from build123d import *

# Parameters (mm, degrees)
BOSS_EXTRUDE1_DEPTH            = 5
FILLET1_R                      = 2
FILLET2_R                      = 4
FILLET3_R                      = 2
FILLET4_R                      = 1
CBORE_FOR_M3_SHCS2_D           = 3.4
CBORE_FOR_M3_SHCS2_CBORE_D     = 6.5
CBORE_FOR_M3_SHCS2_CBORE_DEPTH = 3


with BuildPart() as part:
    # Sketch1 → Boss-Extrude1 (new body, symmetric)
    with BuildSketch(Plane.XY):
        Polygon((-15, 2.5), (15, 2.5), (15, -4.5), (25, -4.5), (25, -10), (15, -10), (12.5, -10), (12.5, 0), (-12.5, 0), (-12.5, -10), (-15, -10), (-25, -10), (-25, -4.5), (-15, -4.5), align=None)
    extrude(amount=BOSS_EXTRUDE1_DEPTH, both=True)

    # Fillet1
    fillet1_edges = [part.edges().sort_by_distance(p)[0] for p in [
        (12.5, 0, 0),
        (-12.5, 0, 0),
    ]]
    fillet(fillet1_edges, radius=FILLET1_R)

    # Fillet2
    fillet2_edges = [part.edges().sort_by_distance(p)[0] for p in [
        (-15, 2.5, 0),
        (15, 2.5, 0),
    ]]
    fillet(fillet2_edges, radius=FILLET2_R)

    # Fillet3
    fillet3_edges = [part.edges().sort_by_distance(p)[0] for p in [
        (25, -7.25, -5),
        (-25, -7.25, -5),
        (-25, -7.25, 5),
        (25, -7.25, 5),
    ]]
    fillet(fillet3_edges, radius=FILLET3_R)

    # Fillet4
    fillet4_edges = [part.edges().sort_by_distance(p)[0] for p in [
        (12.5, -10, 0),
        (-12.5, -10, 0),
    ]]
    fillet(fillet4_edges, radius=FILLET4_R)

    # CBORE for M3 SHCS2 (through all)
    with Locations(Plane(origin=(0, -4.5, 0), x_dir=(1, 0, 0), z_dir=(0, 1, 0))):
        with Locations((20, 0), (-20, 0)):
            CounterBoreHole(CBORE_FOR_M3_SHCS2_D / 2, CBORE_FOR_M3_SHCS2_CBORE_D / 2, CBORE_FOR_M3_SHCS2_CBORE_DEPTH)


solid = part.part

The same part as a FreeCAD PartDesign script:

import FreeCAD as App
import Part
import Sketcher

V = App.Vector


def edges_at(feature, points):
    """Names of the edges that pass closest to the given points."""
    edges = feature.Shape.Edges
    near = lambda p: min(range(len(edges)), key=lambda i: edges[i].distToShape(Part.Vertex(*p))[0])
    return sorted({f"Edge{near(p) + 1}" for p in points})

doc = App.newDocument("Part")
body = doc.addObject("PartDesign::Body", "Body")

# Sketch on XY plane
sketch1 = doc.addObject("Sketcher::SketchObject", "Sketch")
body.addObject(sketch1)
sketch1.AttachmentSupport = (doc.XY_Plane, [""])
sketch1.MapMode = "FlatFace"
sketch1.addGeometry(Part.LineSegment(V(15, 2, 0), V(-15, 2, 0)), False)
sketch1.addGeometry(Part.LineSegment(V(-15, 2, 0), V(-15, -4, 0)), False)
sketch1.addGeometry(Part.LineSegment(V(-15, -4, 0), V(-25, -4, 0)), False)
sketch1.addGeometry(Part.LineSegment(V(-25, -4, 0), V(-25, -10, 0)), False)
sketch1.addGeometry(Part.LineSegment(V(-25, -10, 0), V(-12, -10, 0)), False)
sketch1.addGeometry(Part.LineSegment(V(-12, -10, 0), V(-12, 0, 0)), False)
sketch1.addGeometry(Part.LineSegment(V(-12, 0, 0), V(12, 0, 0)), False)
sketch1.addGeometry(Part.LineSegment(V(12, 0, 0), V(12, -10, 0)), False)
sketch1.addGeometry(Part.LineSegment(V(12, -10, 0), V(25, -10, 0)), False)
sketch1.addGeometry(Part.LineSegment(V(25, -10, 0), V(25, -4, 0)), False)
sketch1.addGeometry(Part.LineSegment(V(25, -4, 0), V(15, -4, 0)), False)
sketch1.addGeometry(Part.LineSegment(V(15, -4, 0), V(15, 2, 0)), False)
sketch1.addConstraint(Sketcher.Constraint("Coincident", 0, 2, 1, 1))
sketch1.addConstraint(Sketcher.Constraint("Coincident", 1, 2, 2, 1))
sketch1.addConstraint(Sketcher.Constraint("Coincident", 2, 2, 3, 1))
sketch1.addConstraint(Sketcher.Constraint("Coincident", 3, 2, 4, 1))
sketch1.addConstraint(Sketcher.Constraint("Coincident", 4, 2, 5, 1))
sketch1.addConstraint(Sketcher.Constraint("Coincident", 5, 2, 6, 1))
sketch1.addConstraint(Sketcher.Constraint("Coincident", 6, 2, 7, 1))
sketch1.addConstraint(Sketcher.Constraint("Coincident", 7, 2, 8, 1))
sketch1.addConstraint(Sketcher.Constraint("Coincident", 8, 2, 9, 1))
sketch1.addConstraint(Sketcher.Constraint("Coincident", 9, 2, 10, 1))
sketch1.addConstraint(Sketcher.Constraint("Coincident", 10, 2, 11, 1))
sketch1.addConstraint(Sketcher.Constraint("Coincident", 11, 2, 0, 1))
sketch1.addConstraint(Sketcher.Constraint("Horizontal", 0))
sketch1.addConstraint(Sketcher.Constraint("Vertical", 1))
sketch1.addConstraint(Sketcher.Constraint("Horizontal", 2))
sketch1.addConstraint(Sketcher.Constraint("Vertical", 3))
sketch1.addConstraint(Sketcher.Constraint("Horizontal", 4))
sketch1.addConstraint(Sketcher.Constraint("Vertical", 5))
sketch1.addConstraint(Sketcher.Constraint("Horizontal", 6))
sketch1.addConstraint(Sketcher.Constraint("Vertical", 7))
sketch1.addConstraint(Sketcher.Constraint("Horizontal", 8))
sketch1.addConstraint(Sketcher.Constraint("Vertical", 9))
sketch1.addConstraint(Sketcher.Constraint("Horizontal", 10))
sketch1.addConstraint(Sketcher.Constraint("Vertical", 11))
sketch1.addConstraint(Sketcher.Constraint("Symmetric", 5, 2, 6, 2, -1, 1))
sketch1.addConstraint(Sketcher.Constraint("Symmetric", 3, 2, 8, 2, -2))
sketch1.addConstraint(Sketcher.Constraint("Symmetric", 1, 2, 10, 2, -2))
sketch1.addConstraint(Sketcher.Constraint("Equal", 10, 5))
sketch1.addConstraint(Sketcher.Constraint("DistanceX", 0, 2, 0, 1, 30.0))
sketch1.addConstraint(Sketcher.Constraint("DistanceX", 2, 2, 2, 1, 10.0))
sketch1.addConstraint(Sketcher.Constraint("DistanceX", 6, 1, 6, 2, 25.0))
sketch1.addConstraint(Sketcher.Constraint("DistanceY", 1, 2, 1, 1, 7.0))
sketch1.addConstraint(Sketcher.Constraint("DistanceY", 3, 2, 3, 1, 5.5))
pad1 = doc.addObject("PartDesign::Pad", "Pad")
body.addObject(pad1)
pad1.Profile = sketch1
pad1.Length = 10
pad1.Midplane = True
doc.recompute()

fillet = doc.addObject("PartDesign::Fillet", "Fillet")
body.addObject(fillet)
fillet.Base = (pad1, edges_at(pad1, [(12.5, 0, 0), (-12.5, 0, 0)]))
fillet.Radius = 2
doc.recompute()

fillet2 = doc.addObject("PartDesign::Fillet", "Fillet001")
body.addObject(fillet2)
fillet2.Base = (fillet, edges_at(fillet, [(-15, 2.5, 0), (15, 2.5, 0)]))
fillet2.Radius = 4
doc.recompute()

fillet3 = doc.addObject("PartDesign::Fillet", "Fillet002")
body.addObject(fillet3)
fillet3.Base = (fillet2, edges_at(fillet2, [
    (25, -7.25, -5),
    (-25, -7.25, -5),
    (-25, -7.25, 5),
    (25, -7.25, 5),
]))
fillet3.Radius = 2
doc.recompute()

fillet4 = doc.addObject("PartDesign::Fillet", "Fillet003")
body.addObject(fillet4)
fillet4.Base = (fillet3, edges_at(fillet3, [(12.5, -10, 0), (-12.5, -10, 0)]))
fillet4.Radius = 1

# Sketch on XZ plane
sketch2 = doc.addObject("Sketcher::SketchObject", "Sketch001")
body.addObject(sketch2)
sketch2.AttachmentSupport = (doc.XZ_Plane, [""])
sketch2.MapMode = "FlatFace"
sketch2.AttachmentOffset = App.Placement(V(0, 0, 4.5), App.Rotation())
sketch2.addGeometry(Part.Circle(V(20, 0, 0), V(0, 0, 1), 1.7), False)
sketch2.addGeometry(Part.Circle(V(-20, 0, 0), V(0, 0, 1), 1.7), False)
sketch2.addConstraint(Sketcher.Constraint("Equal", 0, 1))
sketch2.addConstraint(Sketcher.Constraint("Symmetric", 0, 3, 1, 3, -1, 1))
sketch2.addConstraint(Sketcher.Constraint("PointOnObject", 0, 3, -1))
sketch2.addConstraint(Sketcher.Constraint("Diameter", 0, 3.4))
sketch2.addConstraint(Sketcher.Constraint("DistanceX", -1, 1, 0, 3, 20.0))
doc.recompute()
hole = doc.addObject("PartDesign::Hole", "Hole")
body.addObject(hole)
hole.Profile = sketch2
hole.ThreadType = "None"
hole.Diameter = 3.4
hole.DepthType = "ThroughAll"
hole.HoleCutType = "Counterbore"
hole.HoleCutDiameter = 6.5
hole.HoleCutDepth = 3
hole.Reversed = True

doc.recompute()
